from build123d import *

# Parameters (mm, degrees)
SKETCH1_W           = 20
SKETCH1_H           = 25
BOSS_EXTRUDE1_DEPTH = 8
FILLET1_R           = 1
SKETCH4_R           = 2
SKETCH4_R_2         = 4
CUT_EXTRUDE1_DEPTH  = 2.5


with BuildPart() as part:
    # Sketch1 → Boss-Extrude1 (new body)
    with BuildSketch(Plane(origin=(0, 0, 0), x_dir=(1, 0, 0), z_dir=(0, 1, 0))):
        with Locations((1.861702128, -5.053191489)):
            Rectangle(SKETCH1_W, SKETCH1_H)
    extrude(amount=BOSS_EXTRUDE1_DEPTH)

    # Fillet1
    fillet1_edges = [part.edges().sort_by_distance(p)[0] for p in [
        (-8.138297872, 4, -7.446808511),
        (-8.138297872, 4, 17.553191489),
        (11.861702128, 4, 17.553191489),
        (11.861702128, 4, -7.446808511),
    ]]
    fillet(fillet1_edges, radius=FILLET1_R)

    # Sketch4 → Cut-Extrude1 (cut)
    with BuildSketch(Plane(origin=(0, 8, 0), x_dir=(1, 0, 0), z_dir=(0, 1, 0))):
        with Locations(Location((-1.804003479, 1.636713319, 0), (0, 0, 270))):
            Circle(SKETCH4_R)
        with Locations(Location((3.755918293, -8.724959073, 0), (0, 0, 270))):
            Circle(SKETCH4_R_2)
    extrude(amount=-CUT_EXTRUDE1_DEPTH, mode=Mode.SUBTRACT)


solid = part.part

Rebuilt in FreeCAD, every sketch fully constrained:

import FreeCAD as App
import Part
import Sketcher
from FreeCAD import Vector


def edges_at(feature, points):
    """Names of the edges that pass closest to the given points."""
    edges = feature.Shape.Edges
    near = lambda p: min(range(len(edges)), key=lambda i: edges[i].distToShape(Part.Vertex(*p))[0])
    return sorted({f"Edge{near(p) + 1}" for p in points})


def add_polygon(sketch, points):
    """Adds a closed chain of lines whose ends are joined by coincident constraints."""
    first, n = sketch.GeometryCount, len(points)
    for a, b in zip(points, points[1:] + points[:1]):
        sketch.addGeometry(Part.LineSegment(App.Vector(*a, 0), App.Vector(*b, 0)), False)
    for i in range(n):
        sketch.addConstraint(Sketcher.Constraint("Coincident", first + i, 2, first + (i + 1) % n, 1))

doc = App.newDocument("Part")
body = doc.addObject("PartDesign::Body", "Body")

# Sketch on XZ plane
sketch1 = doc.addObject("Sketcher::SketchObject", "Sketch")
body.addObject(sketch1)
sketch1.AttachmentSupport = (doc.XZ_Plane, [""])
sketch1.MapMode = "FlatFace"
add_polygon(sketch1, [(-8, -7), (-8, 18), (12, 18), (12, -7)])  # lines 0-3
sketch1.addConstraint(Sketcher.Constraint("Vertical", 0))
sketch1.addConstraint(Sketcher.Constraint("Horizontal", 1))
sketch1.addConstraint(Sketcher.Constraint("Vertical", 2))
sketch1.addConstraint(Sketcher.Constraint("Horizontal", 3))
sketch1.addConstraint(Sketcher.Constraint("DistanceX", 1, 1, 1, 2, 20.0))
sketch1.addConstraint(Sketcher.Constraint("DistanceY", 0, 1, 0, 2, 25.0))
sketch1.addConstraint(Sketcher.Constraint("DistanceY", -1, 1, 0, 2, 17.553191))
sketch1.addConstraint(Sketcher.Constraint("DistanceX", 0, 2, -1, 1, 8.138298))
pad1 = doc.addObject("PartDesign::Pad", "Pad")
body.addObject(pad1)
pad1.Profile = sketch1
pad1.Length = 8
pad1.Reversed = True
doc.recompute()

fillet = doc.addObject("PartDesign::Fillet", "Fillet")
body.addObject(fillet)
fillet.Base = (pad1, edges_at(pad1, [
    (-8.138, 4, -7.447),
    (-8.138, 4, 17.553),
    (11.862, 4, 17.553),
    (11.862, 4, -7.447),
]))
fillet.Radius = 1

# Sketch on XZ plane
sketch2 = doc.addObject("Sketcher::SketchObject", "Sketch001")
body.addObject(sketch2)
sketch2.AttachmentSupport = (doc.XZ_Plane, [""])
sketch2.MapMode = "FlatFace"
sketch2.AttachmentOffset = App.Placement(Vector(0, 0, -8), App.Rotation())
sketch2.addGeometry(Part.Circle(Vector(-1.8, -1.6, 0), Vector(0, 0, 1), 2), False)
sketch2.addGeometry(Part.Circle(Vector(3.8, 8.7, 0), Vector(0, 0, 1), 4), False)
sketch2.addConstraint(Sketcher.Constraint("Diameter", 0, 4.0))
sketch2.addConstraint(Sketcher.Constraint("Diameter", 1, 8.0))
sketch2.addConstraint(Sketcher.Constraint("DistanceX", -1, 1, 1, 3, 3.755918))
sketch2.addConstraint(Sketcher.Constraint("DistanceY", -1, 1, 1, 3, 8.724959))
sketch2.addConstraint(Sketcher.Constraint("DistanceX", 0, 3, 1, 3, 5.559922))
sketch2.addConstraint(Sketcher.Constraint("DistanceY", 0, 3, -1, 1, 1.636713))
pocket1 = doc.addObject("PartDesign::Pocket", "Pocket")
body.addObject(pocket1)
pocket1.Profile = sketch2
pocket1.Length = 2.5
pocket1.Reversed = True

doc.recompute()
